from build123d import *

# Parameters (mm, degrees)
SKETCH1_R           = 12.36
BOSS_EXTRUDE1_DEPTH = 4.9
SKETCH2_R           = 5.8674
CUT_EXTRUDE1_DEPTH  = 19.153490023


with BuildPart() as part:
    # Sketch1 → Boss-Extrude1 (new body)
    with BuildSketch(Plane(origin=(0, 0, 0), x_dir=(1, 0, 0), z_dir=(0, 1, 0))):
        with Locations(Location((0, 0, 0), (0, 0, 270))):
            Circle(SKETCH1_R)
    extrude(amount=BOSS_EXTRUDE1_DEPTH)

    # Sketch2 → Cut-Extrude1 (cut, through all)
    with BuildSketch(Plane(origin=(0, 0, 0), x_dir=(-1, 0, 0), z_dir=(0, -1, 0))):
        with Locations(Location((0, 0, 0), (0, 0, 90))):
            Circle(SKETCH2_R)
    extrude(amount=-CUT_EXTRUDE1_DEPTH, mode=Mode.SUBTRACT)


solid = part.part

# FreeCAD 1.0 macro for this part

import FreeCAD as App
import Part
import Sketcher

doc = App.newDocument("Part")
params = doc.addObject("Spreadsheet::Sheet", "Params")
for row, (alias, value) in enumerate([
    ("sketch1_diameter", "24.72 mm"),
    ("pad1_length", "4.9 mm"),
], start=1):
    params.set(f"A{row}", alias)
    params.set(f"B{row}", "=" + value)
    params.setAlias(f"B{row}", alias)

body = doc.addObject("PartDesign::Body", "Body")

sketch1 = body.newObject("Sketcher::SketchObject", "Sketch")
sketch1.AttachmentSupport = (doc.getObject("XZ_Plane"), [""])
sketch1.MapMode = "FlatFace"
sketch1.addGeometry(Part.Circle(App.Vector(0, 0, 0), App.Vector(0, 0, 1), 12.36), False)
sketch1.addConstraint([
    Sketcher.Constraint("Coincident", 0, 3, -1, 1),
    Sketcher.Constraint("Diameter", 0, 24.72),
])
sketch1.setExpression("Constraints[1]", "Params.sketch1_diameter")
pad1 = body.newObject("PartDesign::Pad", "Pad")
pad1.Profile = sketch1
pad1.setExpression("Length", "Params.pad1_length")
pad1.Reversed = True

sketch2 = body.newObject("Sketcher::SketchObject", "Sketch001")
sketch2.AttachmentSupport = (doc.getObject("XZ_Plane"), [""])
sketch2.MapMode = "FlatFace"
sketch2.addGeometry(Part.Circle(App.Vector(0, 0, 0), App.Vector(0, 0, 1), 5.8674), False)
sketch2.addConstraint([
    Sketcher.Constraint("Coincident", 0, 3, -1, 1),
    Sketcher.Constraint("Diameter", 0, 11.7348),
])
pocket1 = body.newObject("PartDesign::Pocket", "Pocket")
pocket1.Profile = sketch2
pocket1.Type = "ThroughAll"

doc.recompute()
